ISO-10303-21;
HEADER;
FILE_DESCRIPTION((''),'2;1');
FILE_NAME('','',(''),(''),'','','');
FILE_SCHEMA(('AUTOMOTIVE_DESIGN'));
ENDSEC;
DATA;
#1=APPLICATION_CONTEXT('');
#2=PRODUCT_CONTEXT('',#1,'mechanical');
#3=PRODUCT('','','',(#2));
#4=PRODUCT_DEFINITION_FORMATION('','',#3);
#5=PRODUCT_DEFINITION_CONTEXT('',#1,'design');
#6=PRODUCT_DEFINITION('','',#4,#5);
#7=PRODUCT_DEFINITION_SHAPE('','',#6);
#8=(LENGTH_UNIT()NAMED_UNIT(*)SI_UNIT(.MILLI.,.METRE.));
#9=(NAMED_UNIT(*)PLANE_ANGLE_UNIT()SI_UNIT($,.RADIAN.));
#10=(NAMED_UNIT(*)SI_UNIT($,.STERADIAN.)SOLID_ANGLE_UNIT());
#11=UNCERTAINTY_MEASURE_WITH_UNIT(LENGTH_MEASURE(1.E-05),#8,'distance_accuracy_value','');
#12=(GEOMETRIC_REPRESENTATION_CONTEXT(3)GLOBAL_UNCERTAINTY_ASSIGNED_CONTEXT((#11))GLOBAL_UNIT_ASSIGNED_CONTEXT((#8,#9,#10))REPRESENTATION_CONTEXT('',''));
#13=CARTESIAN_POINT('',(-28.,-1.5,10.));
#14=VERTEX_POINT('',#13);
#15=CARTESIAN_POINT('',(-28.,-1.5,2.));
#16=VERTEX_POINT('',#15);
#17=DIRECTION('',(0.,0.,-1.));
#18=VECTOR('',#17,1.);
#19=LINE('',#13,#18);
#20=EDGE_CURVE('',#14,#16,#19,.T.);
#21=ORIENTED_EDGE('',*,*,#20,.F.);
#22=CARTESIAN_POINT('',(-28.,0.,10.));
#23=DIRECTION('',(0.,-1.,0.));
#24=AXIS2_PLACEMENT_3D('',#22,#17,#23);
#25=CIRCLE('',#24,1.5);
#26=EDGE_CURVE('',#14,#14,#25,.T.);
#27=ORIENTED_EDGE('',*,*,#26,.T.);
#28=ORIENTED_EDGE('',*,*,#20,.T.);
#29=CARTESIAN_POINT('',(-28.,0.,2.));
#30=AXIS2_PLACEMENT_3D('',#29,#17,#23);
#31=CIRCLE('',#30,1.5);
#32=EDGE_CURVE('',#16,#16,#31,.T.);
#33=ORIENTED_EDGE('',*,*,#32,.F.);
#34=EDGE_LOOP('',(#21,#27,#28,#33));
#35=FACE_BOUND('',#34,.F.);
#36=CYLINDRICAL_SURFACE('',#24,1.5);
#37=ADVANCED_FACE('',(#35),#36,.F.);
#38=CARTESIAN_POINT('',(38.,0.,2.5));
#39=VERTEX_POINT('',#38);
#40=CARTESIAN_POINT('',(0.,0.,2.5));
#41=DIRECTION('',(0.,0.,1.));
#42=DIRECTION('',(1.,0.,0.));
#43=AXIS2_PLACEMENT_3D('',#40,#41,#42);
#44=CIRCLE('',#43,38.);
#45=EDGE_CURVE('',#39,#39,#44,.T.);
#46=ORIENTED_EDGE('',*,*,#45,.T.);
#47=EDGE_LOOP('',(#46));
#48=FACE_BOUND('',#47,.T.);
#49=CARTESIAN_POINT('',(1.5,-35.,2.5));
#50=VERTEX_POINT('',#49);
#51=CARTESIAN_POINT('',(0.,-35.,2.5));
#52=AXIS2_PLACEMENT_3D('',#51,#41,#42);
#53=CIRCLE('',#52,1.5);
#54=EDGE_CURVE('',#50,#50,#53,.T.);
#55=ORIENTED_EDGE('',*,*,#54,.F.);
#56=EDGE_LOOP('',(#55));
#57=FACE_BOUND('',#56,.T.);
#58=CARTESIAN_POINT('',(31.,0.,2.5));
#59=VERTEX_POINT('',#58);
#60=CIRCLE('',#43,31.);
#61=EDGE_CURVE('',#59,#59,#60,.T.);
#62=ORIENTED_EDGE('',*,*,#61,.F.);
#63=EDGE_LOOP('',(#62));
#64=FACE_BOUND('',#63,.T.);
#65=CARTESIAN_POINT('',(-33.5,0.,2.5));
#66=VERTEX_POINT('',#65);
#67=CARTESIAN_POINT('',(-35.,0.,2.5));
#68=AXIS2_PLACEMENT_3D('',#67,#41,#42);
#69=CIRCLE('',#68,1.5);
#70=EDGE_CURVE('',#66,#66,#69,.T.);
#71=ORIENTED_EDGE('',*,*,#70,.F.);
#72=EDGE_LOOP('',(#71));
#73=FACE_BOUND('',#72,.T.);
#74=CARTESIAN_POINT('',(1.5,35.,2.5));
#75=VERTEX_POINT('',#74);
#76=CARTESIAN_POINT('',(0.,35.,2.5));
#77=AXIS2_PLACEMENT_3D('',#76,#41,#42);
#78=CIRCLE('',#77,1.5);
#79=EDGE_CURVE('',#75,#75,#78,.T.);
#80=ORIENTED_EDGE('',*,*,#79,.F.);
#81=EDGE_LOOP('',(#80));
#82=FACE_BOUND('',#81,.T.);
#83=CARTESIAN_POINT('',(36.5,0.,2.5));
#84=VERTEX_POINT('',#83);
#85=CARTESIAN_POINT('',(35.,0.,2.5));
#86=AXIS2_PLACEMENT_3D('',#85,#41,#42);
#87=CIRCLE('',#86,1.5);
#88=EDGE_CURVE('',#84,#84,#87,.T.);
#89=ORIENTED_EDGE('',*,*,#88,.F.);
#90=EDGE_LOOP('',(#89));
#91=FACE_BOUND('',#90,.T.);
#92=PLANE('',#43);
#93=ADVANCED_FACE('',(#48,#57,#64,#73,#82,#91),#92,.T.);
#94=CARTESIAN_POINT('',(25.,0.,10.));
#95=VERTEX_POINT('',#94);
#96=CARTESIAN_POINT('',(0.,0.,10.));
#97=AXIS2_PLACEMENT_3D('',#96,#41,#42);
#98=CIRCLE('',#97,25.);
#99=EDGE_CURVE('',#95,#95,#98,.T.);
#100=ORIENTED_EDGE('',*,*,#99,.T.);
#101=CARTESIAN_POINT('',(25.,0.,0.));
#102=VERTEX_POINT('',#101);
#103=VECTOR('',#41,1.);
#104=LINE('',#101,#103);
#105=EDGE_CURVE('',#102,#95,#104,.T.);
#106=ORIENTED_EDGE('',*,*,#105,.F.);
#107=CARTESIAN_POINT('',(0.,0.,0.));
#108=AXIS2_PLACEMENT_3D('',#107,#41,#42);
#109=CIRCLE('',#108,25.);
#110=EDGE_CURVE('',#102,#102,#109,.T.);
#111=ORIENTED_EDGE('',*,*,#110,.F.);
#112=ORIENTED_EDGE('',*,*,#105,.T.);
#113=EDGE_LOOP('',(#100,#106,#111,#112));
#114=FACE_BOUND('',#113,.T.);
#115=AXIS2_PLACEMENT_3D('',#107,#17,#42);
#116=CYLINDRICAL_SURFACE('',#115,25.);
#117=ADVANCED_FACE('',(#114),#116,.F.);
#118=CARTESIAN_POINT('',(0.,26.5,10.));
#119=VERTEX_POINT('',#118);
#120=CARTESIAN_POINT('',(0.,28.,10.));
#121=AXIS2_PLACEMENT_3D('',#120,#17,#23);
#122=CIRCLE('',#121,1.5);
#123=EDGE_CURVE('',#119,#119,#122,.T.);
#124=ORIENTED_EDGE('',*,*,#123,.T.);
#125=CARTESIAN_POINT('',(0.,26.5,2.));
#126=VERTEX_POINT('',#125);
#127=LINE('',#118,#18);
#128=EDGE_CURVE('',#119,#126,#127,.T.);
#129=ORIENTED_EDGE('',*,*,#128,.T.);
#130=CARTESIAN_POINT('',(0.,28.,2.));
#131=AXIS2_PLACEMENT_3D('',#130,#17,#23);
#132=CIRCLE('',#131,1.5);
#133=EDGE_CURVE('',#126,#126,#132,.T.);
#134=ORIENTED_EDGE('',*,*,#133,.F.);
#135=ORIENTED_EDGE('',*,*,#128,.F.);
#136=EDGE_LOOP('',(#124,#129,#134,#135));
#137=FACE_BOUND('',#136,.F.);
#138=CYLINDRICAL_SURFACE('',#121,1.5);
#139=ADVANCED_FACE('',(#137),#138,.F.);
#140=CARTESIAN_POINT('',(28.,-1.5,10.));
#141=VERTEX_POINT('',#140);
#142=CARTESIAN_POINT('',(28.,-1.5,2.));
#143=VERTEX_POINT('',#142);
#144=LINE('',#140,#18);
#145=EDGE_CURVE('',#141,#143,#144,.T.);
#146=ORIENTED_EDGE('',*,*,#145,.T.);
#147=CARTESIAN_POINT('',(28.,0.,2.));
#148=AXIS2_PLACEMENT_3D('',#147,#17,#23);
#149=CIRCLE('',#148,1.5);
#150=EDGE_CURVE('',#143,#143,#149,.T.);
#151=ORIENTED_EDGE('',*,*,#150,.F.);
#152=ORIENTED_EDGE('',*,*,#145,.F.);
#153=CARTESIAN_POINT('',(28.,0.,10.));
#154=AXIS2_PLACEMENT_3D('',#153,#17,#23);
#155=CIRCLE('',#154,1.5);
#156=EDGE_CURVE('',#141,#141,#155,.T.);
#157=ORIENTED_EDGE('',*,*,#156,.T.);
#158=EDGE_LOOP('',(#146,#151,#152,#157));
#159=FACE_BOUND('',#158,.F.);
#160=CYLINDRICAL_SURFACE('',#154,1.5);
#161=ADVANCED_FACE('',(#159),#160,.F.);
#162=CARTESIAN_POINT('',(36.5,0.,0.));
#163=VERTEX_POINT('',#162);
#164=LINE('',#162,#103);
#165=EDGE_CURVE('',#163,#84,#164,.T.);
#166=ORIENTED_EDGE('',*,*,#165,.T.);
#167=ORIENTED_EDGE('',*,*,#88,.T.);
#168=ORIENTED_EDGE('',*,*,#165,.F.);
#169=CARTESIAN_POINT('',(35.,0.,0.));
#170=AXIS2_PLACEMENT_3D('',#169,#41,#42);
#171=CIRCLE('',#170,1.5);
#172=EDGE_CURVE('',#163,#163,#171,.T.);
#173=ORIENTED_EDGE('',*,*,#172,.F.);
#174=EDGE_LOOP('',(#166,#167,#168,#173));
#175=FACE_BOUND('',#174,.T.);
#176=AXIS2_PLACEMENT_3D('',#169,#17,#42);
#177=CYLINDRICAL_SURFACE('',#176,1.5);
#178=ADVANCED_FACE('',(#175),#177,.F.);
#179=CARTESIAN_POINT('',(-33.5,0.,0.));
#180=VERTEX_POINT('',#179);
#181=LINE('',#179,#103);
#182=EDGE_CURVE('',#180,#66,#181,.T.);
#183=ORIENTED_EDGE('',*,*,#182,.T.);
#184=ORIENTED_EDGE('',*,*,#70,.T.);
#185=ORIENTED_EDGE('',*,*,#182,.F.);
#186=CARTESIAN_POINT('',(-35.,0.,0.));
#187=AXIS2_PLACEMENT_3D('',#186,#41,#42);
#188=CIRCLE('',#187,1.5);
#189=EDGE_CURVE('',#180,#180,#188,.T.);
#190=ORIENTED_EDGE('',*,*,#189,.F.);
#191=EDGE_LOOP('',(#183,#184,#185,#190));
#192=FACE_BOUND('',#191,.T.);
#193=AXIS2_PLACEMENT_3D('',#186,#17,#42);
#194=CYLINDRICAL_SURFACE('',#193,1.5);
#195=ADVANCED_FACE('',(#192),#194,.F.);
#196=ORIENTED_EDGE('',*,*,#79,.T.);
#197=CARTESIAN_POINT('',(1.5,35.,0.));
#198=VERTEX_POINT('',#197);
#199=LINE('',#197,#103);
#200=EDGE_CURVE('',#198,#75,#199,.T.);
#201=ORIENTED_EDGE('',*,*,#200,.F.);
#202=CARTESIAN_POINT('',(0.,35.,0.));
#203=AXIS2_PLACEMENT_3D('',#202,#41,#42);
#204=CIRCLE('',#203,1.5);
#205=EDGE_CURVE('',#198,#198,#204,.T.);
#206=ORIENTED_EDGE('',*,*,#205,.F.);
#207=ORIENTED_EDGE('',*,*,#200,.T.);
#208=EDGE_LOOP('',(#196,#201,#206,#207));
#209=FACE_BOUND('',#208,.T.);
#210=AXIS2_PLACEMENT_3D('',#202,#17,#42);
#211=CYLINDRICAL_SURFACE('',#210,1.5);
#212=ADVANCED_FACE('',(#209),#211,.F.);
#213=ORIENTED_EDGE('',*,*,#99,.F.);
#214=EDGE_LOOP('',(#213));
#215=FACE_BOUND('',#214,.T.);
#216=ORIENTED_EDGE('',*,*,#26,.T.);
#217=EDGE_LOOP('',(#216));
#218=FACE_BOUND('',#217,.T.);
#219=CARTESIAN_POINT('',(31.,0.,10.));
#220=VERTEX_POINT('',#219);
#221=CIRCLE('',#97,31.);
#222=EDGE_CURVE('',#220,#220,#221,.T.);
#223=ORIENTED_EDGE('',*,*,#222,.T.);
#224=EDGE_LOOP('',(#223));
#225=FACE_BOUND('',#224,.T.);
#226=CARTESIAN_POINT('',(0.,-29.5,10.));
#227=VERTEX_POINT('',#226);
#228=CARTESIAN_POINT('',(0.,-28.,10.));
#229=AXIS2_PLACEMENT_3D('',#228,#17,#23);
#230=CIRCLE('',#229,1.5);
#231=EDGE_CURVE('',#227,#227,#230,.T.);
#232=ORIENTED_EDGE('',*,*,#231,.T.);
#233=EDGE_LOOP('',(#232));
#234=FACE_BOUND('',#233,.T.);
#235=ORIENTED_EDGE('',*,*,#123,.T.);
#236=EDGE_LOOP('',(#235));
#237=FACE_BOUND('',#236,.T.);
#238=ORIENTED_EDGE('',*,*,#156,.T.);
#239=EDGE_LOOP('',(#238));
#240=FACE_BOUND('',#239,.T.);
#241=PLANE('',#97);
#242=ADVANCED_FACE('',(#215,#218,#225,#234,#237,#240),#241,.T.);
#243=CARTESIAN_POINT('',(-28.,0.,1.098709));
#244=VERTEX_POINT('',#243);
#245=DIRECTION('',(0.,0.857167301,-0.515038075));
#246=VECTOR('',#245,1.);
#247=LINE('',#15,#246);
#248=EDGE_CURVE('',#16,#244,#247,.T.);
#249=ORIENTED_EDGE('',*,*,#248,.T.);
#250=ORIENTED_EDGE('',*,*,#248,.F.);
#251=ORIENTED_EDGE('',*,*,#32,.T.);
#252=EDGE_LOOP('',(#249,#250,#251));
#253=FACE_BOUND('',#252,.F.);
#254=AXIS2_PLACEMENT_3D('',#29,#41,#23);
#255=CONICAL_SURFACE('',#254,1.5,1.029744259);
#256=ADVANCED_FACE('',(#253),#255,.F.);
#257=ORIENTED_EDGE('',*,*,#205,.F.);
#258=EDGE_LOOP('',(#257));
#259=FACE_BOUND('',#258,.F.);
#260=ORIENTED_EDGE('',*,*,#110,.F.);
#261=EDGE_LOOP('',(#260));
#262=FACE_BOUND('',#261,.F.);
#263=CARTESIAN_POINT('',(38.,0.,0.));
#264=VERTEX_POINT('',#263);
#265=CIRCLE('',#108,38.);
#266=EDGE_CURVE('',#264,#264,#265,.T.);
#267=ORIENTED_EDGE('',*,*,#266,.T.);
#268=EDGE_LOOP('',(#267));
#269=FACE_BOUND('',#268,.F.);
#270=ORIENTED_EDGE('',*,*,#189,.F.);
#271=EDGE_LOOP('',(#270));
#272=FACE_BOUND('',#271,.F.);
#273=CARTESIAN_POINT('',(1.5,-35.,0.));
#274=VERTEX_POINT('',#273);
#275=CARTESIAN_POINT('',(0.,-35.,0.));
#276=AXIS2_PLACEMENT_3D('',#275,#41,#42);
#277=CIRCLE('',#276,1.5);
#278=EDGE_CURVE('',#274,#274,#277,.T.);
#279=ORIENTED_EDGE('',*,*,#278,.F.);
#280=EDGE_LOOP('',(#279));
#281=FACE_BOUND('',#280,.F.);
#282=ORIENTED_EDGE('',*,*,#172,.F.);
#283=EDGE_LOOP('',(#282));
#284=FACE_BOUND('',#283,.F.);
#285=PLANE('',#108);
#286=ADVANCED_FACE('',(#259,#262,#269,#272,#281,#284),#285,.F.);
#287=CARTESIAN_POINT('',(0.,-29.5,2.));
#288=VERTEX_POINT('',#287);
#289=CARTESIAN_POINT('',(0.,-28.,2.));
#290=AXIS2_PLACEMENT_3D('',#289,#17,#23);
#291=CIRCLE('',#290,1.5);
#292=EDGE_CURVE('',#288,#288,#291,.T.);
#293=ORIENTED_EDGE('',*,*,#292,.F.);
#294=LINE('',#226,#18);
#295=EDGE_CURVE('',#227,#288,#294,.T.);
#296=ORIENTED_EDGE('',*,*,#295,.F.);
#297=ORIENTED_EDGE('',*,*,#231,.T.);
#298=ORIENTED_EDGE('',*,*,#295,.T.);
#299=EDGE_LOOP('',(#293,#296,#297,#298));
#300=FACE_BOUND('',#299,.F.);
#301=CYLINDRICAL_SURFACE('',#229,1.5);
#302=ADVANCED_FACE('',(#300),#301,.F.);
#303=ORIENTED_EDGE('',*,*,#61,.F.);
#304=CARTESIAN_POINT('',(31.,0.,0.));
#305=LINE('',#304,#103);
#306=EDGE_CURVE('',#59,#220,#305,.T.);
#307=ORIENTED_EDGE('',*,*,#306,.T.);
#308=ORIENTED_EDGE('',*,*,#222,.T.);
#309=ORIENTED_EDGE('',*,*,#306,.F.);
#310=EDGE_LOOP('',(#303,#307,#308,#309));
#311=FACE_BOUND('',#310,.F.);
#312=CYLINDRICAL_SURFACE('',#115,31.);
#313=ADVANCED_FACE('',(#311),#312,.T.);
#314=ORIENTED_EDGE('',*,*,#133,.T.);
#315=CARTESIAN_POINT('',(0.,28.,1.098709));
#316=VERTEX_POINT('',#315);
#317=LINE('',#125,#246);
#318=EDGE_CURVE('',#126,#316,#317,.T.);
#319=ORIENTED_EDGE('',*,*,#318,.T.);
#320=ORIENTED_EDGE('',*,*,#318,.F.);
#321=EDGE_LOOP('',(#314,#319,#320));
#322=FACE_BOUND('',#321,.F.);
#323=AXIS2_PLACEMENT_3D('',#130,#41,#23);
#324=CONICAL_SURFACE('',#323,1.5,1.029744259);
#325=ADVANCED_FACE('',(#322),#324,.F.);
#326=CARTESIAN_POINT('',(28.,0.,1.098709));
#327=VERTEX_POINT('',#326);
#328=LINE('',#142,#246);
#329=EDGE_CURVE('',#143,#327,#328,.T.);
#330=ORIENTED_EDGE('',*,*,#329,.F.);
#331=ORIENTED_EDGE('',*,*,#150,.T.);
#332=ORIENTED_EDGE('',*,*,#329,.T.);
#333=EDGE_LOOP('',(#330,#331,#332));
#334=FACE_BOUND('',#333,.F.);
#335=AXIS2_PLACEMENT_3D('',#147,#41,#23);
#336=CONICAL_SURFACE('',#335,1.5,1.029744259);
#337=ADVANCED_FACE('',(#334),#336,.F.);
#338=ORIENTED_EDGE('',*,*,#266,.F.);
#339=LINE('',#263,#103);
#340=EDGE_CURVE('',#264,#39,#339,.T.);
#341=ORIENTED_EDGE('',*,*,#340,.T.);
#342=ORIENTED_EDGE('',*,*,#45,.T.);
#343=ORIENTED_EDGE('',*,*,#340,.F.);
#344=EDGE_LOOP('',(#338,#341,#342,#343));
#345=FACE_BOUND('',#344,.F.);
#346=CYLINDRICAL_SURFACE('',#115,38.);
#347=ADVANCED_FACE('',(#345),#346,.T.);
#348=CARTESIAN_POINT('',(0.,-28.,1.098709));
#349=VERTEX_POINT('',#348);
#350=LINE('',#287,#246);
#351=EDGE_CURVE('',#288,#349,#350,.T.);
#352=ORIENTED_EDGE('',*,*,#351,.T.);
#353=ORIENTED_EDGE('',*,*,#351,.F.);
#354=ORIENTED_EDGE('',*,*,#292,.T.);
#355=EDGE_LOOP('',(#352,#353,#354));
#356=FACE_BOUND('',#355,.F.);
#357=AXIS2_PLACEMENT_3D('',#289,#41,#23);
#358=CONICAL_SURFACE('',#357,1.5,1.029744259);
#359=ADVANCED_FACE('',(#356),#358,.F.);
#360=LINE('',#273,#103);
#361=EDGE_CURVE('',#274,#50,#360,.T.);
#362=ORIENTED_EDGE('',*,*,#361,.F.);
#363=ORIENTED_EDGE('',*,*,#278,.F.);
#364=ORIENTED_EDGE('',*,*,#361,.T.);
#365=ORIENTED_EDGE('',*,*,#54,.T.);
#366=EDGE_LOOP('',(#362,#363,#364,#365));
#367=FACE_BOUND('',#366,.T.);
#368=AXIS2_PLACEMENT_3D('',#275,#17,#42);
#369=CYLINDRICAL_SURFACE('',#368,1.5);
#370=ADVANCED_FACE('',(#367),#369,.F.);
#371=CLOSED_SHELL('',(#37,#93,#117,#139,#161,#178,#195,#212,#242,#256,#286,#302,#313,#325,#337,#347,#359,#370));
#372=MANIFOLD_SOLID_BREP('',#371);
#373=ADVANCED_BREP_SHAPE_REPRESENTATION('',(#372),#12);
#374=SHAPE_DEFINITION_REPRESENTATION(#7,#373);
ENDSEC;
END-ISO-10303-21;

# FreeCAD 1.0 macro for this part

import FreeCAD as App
import Part
import Sketcher
Q = App.Units.Quantity

doc = App.newDocument("Part")
body = doc.addObject("PartDesign::Body", "Body")

# Sketch on XY plane
sketch1 = body.newObject("Sketcher::SketchObject", "Sketch")
sketch1.AttachmentSupport = (doc.getObject("XY_Plane"), [""])
sketch1.MapMode = "FlatFace"
sketch1.addGeometry(Part.Circle(App.Vector(0, 0, 0), App.Vector(0, 0, 1), 38), False)
sketch1.addGeometry(Part.Circle(App.Vector(0, -35, 0), App.Vector(0, 0, 1), 1.5), False)
sketch1.addGeometry(Part.Circle(App.Vector(-35, 0, 0), App.Vector(0, 0, 1), 1.5), False)
sketch1.addGeometry(Part.Circle(App.Vector(0, 0, 0), App.Vector(0, 0, 1), 31), False)
sketch1.addGeometry(Part.Circle(App.Vector(35, 0, 0), App.Vector(0, 0, 1), 1.5), False)
sketch1.addGeometry(Part.Circle(App.Vector(0, 35, 0), App.Vector(0, 0, 1), 1.5), False)
sketch1.addConstraint(Sketcher.Constraint("Coincident", 0, 3, -1, 1))
sketch1.addConstraint(Sketcher.Constraint("Coincident", 3, 3, -1, 1))
sketch1.addConstraint(Sketcher.Constraint("Equal", 1, 2))
sketch1.addConstraint(Sketcher.Constraint("Equal", 2, 4))
sketch1.addConstraint(Sketcher.Constraint("Equal", 4, 5))
sketch1.addConstraint(Sketcher.Constraint("Symmetric", 2, 3, 4, 3, -1, 1))
sketch1.addConstraint(Sketcher.Constraint("Symmetric", 1, 3, 5, 3, -1, 1))
sketch1.addConstraint(Sketcher.Constraint("PointOnObject", 1, 3, -2))
sketch1.addConstraint(Sketcher.Constraint("PointOnObject", 2, 3, -1))
sketch1.addConstraint(Sketcher.Constraint("Diameter", 1, Q("3 mm")))
sketch1.addConstraint(Sketcher.Constraint("Diameter", 0, Q("76 mm")))
sketch1.addConstraint(Sketcher.Constraint("Diameter", 3, Q("62 mm")))
sketch1.addConstraint(Sketcher.Constraint("DistanceY", 1, 3, -1, 1, Q("35 mm")))
sketch1.addConstraint(Sketcher.Constraint("DistanceX", 2, 3, -1, 1, Q("35 mm")))
pad1 = body.newObject("PartDesign::Pad", "Pad")
pad1.Profile = sketch1
pad1.Length = 2.5

# Sketch on XY plane
sketch2 = body.newObject("Sketcher::SketchObject", "Sketch001")
sketch2.AttachmentSupport = (doc.getObject("XY_Plane"), [""])
sketch2.MapMode = "FlatFace"
sketch2.addGeometry(Part.Circle(App.Vector(0, 0, 0), App.Vector(0, 0, 1), 31), False)
sketch2.addGeometry(Part.Circle(App.Vector(0, 0, 0), App.Vector(0, 0, 1), 25), False)
sketch2.addConstraint(Sketcher.Constraint("Coincident", 0, 3, -1, 1))
sketch2.addConstraint(Sketcher.Constraint("Coincident", 1, 3, -1, 1))
sketch2.addConstraint(Sketcher.Constraint("Diameter", 1, Q("50 mm")))
sketch2.addConstraint(Sketcher.Constraint("Diameter", 0, Q("62 mm")))
pad2 = body.newObject("PartDesign::Pad", "Pad001")
pad2.Profile = sketch2
pad2.Length = 10

# Sketch on XY plane
sketch3 = body.newObject("Sketcher::SketchObject", "Sketch002")
sketch3.AttachmentSupport = (doc.getObject("XY_Plane"), [""])
sketch3.MapMode = "FlatFace"
sketch3.AttachmentOffset = App.Placement(App.Vector(0, 0, 10), App.Rotation())
sketch3.addGeometry(Part.Circle(App.Vector(0, 28, 0), App.Vector(0, 0, 1), 1.5), False)
sketch3.addGeometry(Part.Circle(App.Vector(-28, 0, 0), App.Vector(0, 0, 1), 1.5), False)
sketch3.addGeometry(Part.Circle(App.Vector(0, -28, 0), App.Vector(0, 0, 1), 1.5), False)
sketch3.addGeometry(Part.Circle(App.Vector(28, 0, 0), App.Vector(0, 0, 1), 1.5), False)
sketch3.addConstraint(Sketcher.Constraint("Equal", 0, 1))
sketch3.addConstraint(Sketcher.Constraint("Equal", 1, 2))
sketch3.addConstraint(Sketcher.Constraint("Equal", 2, 3))
sketch3.addConstraint(Sketcher.Constraint("Symmetric", 0, 3, 2, 3, -1, 1))
sketch3.addConstraint(Sketcher.Constraint("Symmetric", 1, 3, 3, 3, -1, 1))
sketch3.addConstraint(Sketcher.Constraint("PointOnObject", 0, 3, -2))
sketch3.addConstraint(Sketcher.Constraint("PointOnObject", 1, 3, -1))
sketch3.addConstraint(Sketcher.Constraint("Diameter", 0, Q("3 mm")))
sketch3.addConstraint(Sketcher.Constraint("DistanceY", -1, 1, 0, 3, Q("28 mm")))
sketch3.addConstraint(Sketcher.Constraint("DistanceX", 1, 3, -1, 1, Q("28 mm")))
doc.recompute()
hole = body.newObject("PartDesign::Hole", "Hole")
hole.Profile = sketch3
hole.ThreadType = "None"
hole.Diameter = 3
hole.DepthType = "Dimension"
hole.Depth = 8
hole.DrillPoint = "Angled"
hole.DrillPointAngle = 118

doc.recompute()
